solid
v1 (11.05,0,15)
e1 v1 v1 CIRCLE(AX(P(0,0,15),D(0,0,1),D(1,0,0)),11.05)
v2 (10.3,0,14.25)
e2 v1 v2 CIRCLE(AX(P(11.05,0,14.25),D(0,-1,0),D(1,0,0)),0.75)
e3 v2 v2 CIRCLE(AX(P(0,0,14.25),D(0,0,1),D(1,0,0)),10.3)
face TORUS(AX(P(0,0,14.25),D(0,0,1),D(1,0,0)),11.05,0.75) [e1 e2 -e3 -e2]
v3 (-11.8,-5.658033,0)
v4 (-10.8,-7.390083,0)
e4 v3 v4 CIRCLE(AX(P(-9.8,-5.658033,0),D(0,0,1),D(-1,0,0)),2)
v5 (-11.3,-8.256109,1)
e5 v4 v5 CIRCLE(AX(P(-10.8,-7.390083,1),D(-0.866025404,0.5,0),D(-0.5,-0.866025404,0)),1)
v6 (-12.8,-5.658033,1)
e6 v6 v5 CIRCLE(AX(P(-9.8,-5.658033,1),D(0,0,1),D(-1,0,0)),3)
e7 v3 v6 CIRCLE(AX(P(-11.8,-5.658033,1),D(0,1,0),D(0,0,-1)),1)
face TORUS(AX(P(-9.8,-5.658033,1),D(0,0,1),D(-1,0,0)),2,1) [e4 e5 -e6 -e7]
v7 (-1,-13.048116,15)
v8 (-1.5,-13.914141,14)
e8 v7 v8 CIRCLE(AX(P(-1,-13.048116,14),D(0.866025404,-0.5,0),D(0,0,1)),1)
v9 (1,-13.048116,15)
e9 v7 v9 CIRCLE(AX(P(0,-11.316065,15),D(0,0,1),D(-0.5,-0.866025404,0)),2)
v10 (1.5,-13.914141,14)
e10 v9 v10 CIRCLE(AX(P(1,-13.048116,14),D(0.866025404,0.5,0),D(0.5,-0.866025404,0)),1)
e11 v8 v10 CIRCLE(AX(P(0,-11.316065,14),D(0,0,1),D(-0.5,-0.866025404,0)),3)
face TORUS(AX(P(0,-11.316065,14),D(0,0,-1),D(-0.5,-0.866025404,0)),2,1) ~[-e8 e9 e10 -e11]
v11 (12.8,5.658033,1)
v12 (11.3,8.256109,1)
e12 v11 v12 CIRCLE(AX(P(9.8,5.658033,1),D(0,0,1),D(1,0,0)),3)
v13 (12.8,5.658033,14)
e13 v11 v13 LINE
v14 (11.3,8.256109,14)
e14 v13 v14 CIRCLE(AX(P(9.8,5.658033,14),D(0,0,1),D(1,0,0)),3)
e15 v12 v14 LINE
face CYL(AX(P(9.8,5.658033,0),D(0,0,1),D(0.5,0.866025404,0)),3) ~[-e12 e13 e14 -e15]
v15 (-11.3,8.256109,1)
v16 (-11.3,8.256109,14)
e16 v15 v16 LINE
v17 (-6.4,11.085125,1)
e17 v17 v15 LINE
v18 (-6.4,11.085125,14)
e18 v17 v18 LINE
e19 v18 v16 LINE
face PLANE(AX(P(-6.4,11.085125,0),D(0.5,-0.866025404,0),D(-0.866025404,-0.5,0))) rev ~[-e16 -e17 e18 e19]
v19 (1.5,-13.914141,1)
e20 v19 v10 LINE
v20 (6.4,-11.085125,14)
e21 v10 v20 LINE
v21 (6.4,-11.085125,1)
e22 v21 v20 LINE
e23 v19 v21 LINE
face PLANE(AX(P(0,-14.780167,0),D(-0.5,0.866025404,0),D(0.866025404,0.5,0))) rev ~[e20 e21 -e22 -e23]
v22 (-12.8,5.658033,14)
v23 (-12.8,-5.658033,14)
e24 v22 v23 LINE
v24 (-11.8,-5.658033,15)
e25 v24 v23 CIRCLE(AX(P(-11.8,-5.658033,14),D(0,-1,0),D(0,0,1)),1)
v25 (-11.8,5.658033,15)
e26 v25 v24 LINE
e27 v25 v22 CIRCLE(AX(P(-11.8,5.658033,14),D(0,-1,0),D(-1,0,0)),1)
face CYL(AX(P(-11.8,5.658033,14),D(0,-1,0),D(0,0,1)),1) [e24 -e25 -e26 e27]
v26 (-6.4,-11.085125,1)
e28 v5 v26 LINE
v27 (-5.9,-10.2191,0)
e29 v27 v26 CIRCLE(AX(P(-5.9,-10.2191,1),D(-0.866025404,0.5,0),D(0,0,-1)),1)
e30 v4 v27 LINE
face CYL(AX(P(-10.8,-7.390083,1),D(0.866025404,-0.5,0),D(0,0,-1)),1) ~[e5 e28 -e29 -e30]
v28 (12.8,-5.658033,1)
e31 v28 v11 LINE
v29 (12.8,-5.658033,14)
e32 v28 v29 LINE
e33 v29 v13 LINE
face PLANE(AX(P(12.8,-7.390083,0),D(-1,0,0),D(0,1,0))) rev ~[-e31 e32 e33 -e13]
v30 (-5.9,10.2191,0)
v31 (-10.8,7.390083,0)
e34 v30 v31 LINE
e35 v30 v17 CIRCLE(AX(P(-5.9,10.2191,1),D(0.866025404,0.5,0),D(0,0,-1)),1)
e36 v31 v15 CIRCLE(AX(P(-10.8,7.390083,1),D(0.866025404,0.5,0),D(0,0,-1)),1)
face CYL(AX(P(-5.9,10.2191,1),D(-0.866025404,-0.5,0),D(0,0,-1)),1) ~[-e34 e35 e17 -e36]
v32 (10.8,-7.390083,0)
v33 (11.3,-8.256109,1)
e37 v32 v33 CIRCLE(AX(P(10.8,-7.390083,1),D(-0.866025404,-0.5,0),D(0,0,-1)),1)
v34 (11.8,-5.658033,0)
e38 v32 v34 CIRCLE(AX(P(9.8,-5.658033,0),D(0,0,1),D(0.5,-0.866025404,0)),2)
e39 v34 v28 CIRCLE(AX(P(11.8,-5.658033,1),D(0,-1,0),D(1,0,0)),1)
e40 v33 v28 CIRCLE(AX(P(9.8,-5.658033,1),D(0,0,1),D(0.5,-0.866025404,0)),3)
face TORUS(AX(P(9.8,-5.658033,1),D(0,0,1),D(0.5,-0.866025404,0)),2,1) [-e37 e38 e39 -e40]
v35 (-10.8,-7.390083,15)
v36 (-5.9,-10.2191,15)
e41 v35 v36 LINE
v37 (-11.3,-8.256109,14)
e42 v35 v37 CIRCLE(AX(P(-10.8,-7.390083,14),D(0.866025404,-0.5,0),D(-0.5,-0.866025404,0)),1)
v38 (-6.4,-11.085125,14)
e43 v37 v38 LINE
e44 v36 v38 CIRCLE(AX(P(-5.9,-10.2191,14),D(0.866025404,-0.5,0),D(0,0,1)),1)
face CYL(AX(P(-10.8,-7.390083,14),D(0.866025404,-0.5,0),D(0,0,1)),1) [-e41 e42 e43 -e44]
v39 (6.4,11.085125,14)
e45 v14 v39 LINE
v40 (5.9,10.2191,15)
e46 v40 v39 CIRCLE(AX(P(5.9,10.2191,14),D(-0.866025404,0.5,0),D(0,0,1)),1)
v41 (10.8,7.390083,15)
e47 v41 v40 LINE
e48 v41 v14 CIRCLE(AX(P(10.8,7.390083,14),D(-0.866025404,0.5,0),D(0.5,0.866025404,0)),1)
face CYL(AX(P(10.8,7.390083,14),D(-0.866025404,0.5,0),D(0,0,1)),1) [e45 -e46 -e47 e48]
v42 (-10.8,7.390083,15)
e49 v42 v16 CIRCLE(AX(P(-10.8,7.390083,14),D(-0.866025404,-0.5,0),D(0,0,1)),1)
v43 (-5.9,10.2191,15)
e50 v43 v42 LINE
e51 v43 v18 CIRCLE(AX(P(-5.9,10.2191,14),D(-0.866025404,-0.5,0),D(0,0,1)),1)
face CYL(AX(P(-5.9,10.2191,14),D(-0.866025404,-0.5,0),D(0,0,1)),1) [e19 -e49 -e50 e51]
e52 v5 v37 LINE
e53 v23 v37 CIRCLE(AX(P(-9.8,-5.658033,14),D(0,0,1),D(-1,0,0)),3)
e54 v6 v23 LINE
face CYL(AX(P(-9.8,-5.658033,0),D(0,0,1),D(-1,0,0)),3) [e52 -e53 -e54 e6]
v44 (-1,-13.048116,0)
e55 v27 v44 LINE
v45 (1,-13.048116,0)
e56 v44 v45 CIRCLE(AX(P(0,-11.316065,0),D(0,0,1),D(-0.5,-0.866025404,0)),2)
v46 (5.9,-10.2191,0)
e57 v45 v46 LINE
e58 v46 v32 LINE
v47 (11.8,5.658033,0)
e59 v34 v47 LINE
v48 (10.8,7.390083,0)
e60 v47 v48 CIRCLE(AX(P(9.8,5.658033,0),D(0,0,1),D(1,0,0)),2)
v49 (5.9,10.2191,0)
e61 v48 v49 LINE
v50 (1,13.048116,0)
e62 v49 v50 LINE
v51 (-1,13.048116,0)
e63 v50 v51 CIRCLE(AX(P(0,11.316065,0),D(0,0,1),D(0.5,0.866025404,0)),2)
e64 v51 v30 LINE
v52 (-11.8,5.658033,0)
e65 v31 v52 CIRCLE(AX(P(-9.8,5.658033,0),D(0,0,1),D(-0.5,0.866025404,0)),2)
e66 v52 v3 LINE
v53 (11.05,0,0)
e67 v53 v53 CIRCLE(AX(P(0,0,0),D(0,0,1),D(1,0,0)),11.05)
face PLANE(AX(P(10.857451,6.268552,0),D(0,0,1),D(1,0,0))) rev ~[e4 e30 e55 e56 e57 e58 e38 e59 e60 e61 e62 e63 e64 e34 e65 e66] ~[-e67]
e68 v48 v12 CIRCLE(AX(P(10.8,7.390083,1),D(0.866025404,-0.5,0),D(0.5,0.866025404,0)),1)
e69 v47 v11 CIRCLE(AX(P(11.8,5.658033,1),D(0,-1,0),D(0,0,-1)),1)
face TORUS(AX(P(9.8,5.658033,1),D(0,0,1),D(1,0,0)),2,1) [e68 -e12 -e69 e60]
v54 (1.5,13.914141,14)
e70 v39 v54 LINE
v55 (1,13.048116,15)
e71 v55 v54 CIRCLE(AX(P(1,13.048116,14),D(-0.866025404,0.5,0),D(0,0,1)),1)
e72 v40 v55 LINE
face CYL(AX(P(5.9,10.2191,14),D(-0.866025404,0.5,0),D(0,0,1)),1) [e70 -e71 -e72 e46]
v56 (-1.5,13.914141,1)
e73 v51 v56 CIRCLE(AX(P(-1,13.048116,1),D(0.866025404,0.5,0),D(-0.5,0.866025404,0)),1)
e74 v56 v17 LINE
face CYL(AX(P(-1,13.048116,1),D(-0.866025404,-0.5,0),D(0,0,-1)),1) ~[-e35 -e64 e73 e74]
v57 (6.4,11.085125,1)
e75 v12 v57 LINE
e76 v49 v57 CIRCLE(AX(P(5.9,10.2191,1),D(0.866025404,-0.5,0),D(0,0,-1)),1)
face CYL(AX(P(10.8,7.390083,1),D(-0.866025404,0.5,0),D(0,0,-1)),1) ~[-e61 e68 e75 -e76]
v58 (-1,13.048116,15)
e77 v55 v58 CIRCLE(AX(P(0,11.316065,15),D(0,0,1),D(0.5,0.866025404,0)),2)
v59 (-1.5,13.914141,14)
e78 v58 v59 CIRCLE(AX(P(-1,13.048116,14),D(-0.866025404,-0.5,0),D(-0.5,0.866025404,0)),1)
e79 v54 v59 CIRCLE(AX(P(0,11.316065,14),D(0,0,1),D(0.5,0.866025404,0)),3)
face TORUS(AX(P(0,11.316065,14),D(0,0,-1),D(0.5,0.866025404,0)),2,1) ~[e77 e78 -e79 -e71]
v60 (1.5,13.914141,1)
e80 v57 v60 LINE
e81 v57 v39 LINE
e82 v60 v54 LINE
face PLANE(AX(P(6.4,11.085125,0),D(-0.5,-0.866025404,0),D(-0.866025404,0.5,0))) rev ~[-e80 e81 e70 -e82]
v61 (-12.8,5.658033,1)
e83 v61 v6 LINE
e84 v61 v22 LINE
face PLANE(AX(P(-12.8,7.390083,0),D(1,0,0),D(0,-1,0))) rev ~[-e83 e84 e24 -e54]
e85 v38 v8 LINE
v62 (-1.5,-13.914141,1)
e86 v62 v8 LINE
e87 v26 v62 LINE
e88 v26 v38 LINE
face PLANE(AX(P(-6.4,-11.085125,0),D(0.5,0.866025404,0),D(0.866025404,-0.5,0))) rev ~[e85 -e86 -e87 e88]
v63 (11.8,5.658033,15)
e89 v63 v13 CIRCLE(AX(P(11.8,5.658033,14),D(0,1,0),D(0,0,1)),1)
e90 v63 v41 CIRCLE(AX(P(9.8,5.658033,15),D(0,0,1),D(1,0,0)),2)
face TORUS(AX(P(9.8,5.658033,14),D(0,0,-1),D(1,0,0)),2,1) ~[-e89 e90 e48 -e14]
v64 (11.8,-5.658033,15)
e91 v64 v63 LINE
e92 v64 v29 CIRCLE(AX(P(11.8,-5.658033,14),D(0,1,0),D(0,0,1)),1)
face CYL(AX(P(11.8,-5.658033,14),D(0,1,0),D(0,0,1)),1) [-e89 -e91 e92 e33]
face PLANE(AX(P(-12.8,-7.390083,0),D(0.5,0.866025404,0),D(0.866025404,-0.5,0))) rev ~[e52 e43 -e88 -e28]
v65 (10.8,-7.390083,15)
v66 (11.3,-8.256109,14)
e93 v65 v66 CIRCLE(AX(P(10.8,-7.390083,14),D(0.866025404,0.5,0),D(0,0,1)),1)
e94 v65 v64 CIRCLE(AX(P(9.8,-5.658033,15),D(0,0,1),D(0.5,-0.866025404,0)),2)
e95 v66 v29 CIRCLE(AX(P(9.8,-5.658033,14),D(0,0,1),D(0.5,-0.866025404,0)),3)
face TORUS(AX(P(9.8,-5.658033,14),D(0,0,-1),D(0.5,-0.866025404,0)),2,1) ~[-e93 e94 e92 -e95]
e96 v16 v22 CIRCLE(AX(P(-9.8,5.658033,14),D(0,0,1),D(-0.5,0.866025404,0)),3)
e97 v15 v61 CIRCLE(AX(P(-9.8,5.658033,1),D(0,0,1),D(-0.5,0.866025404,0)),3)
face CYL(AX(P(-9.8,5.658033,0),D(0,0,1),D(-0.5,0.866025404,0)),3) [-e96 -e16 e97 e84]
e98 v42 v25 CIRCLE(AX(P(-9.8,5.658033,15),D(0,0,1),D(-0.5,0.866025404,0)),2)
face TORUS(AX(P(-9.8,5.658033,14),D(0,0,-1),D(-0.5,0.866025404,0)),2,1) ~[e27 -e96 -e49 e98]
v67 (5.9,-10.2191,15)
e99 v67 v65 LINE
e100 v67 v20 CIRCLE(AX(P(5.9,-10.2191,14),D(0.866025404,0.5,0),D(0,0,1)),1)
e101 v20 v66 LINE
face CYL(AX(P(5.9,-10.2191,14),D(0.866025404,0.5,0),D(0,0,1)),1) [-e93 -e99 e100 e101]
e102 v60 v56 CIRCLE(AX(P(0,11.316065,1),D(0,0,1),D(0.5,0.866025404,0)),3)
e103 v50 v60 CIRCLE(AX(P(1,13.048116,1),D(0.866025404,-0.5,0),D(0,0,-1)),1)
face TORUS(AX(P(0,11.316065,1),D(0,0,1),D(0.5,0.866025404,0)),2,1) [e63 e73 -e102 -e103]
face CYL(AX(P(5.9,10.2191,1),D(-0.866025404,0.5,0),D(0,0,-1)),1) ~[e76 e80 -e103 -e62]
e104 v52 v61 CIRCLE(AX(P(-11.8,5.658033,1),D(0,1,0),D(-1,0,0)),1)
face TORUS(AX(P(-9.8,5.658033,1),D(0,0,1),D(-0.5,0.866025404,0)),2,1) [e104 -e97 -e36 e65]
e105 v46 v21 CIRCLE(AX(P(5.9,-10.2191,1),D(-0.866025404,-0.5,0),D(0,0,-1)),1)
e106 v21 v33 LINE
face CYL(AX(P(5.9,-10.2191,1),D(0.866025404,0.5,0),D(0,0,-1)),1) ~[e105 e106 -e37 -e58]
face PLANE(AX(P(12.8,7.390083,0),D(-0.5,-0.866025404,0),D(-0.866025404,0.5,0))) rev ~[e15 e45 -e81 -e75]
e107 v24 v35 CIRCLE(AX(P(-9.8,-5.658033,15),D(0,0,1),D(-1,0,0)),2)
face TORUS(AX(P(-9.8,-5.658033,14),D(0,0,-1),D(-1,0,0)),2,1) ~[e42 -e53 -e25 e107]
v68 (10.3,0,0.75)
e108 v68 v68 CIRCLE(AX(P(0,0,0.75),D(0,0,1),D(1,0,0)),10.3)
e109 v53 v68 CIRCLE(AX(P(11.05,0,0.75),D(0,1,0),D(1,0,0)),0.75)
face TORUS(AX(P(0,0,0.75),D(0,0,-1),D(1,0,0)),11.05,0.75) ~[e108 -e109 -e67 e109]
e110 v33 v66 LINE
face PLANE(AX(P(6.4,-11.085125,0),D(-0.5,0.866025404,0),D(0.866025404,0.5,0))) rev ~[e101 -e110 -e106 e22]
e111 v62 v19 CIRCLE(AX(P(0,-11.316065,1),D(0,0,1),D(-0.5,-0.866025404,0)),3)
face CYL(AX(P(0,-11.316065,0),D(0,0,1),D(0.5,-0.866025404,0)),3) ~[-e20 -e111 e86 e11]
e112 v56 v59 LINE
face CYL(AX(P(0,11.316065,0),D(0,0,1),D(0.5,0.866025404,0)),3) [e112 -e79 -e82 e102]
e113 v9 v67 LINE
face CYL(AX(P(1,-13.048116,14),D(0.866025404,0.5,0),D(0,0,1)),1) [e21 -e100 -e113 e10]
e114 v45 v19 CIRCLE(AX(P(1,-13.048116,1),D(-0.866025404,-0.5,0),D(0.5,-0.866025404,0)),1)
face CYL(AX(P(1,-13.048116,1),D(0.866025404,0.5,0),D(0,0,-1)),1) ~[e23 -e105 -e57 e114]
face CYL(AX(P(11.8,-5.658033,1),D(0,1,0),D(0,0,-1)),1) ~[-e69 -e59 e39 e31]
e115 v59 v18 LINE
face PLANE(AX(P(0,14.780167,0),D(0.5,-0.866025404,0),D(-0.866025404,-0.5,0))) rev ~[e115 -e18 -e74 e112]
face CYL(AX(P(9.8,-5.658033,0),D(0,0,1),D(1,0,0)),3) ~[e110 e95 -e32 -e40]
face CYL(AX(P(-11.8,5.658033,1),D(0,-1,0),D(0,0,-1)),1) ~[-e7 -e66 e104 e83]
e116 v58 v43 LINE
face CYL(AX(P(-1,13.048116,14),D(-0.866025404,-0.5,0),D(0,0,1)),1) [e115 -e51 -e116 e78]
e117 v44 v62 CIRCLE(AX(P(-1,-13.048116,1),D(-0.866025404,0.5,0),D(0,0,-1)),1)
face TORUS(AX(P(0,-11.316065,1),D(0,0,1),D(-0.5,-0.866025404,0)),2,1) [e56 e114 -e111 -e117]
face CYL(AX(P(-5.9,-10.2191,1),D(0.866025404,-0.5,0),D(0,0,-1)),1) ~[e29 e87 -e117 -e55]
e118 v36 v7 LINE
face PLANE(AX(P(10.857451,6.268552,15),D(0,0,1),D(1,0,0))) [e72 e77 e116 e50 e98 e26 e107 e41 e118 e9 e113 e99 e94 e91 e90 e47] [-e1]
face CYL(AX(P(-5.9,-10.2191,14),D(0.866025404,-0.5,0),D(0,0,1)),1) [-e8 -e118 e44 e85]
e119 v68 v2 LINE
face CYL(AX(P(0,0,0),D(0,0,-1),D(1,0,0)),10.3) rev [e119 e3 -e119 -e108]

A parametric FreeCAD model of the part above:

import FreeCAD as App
import Part
import Sketcher
from FreeCAD import Vector
Q = App.Units.Quantity


def edges_at(feature, points):
    """Names of the edges that pass closest to the given points."""
    edges = feature.Shape.Edges
    near = lambda p: min(range(len(edges)), key=lambda i: edges[i].distToShape(Part.Vertex(*p))[0])
    return sorted({f"Edge{near(p) + 1}" for p in points})

doc = App.newDocument("Part")
params = doc.addObject("Spreadsheet::Sheet", "Params")
for row, (alias, value) in enumerate([
    ("sketch1_diameter", "20.6 mm"),
    ("pad1_length", "15 mm"),
    ("fillet_radius", "3 mm"),
    ("fillet2_radius", "1 mm"),
    ("fillet3_radius", "0.75 mm"),
], start=1):
    params.set(f"A{row}", alias)
    params.set(f"B{row}", "=" + value)
    params.setAlias(f"B{row}", alias)

body = doc.addObject("PartDesign::Body", "Body")

sketch1 = body.newObject("Sketcher::SketchObject", "Sketch")
sketch1.AttachmentSupport = (doc.getObject("XY_Plane"), [""])
sketch1.MapMode = "FlatFace"
sketch1.addGeometry([
    Part.LineSegment(Vector(12.8, 7.390083, 0), Vector(6.4, 11.085125, 0)),
    Part.LineSegment(Vector(6.4, 11.085125, 0), Vector(0, 14.780167, 0)),
    Part.LineSegment(Vector(0, 14.780167, 0), Vector(-6.4, 11.085125, 0)),
    Part.LineSegment(Vector(-6.4, 11.085125, 0), Vector(-12.8, 7.390083, 0)),
    Part.LineSegment(Vector(-12.8, 7.390083, 0), Vector(-12.8, -7.390083, 0)),
    Part.LineSegment(Vector(-12.8, -7.390083, 0), Vector(-6.4, -11.085125, 0)),
    Part.LineSegment(Vector(-6.4, -11.085125, 0), Vector(0, -14.780167, 0)),
    Part.LineSegment(Vector(0, -14.780167, 0), Vector(6.4, -11.085125, 0)),
    Part.LineSegment(Vector(6.4, -11.085125, 0), Vector(12.8, -7.390083, 0)),
    Part.LineSegment(Vector(12.8, -7.390083, 0), Vector(12.8, 7.390083, 0)),
    Part.Circle(Vector(0, 0, 0), Vector(0, 0, 1), 10.3),
], False)
sketch1.addConstraint([
    Sketcher.Constraint("Coincident", 0, 2, 1, 1),
    Sketcher.Constraint("Coincident", 1, 2, 2, 1),
    Sketcher.Constraint("Coincident", 2, 2, 3, 1),
    Sketcher.Constraint("Coincident", 3, 2, 4, 1),
    Sketcher.Constraint("Coincident", 4, 2, 5, 1),
    Sketcher.Constraint("Coincident", 5, 2, 6, 1),
    Sketcher.Constraint("Coincident", 6, 2, 7, 1),
    Sketcher.Constraint("Coincident", 7, 2, 8, 1),
    Sketcher.Constraint("Coincident", 8, 2, 9, 1),
    Sketcher.Constraint("Coincident", 9, 2, 0, 1),
    Sketcher.Constraint("Vertical", 4),
    Sketcher.Constraint("Vertical", 9),
    Sketcher.Constraint("Coincident", 10, 3, -1, 1),
    Sketcher.Constraint("Symmetric", 0, 2, 5, 2, -1, 1),
    Sketcher.Constraint("Symmetric", 1, 2, 6, 2, -1, 1),
    Sketcher.Constraint("Symmetric", 2, 2, 7, 2, -1, 1),
    Sketcher.Constraint("Symmetric", 3, 2, 8, 2, -1, 1),
    Sketcher.Constraint("Symmetric", 0, 2, 2, 2, -2),
    Sketcher.Constraint("PointOnObject", 1, 2, -2),
    Sketcher.Constraint("Parallel", 0, 1),
    Sketcher.Constraint("Parallel", 2, 3),
    Sketcher.Constraint("Parallel", 1, 5),
    Sketcher.Constraint("Equal", 0, 1),
    Sketcher.Constraint("Diameter", 10, Q("20.6 mm")),
    Sketcher.Constraint("Angle", 0, Q("150 deg")),
    Sketcher.Constraint("DistanceX", -1, 1, 0, 2, Q("6.4 mm")),
    Sketcher.Constraint("DistanceY", 4, 2, 4, 1, Q("14.780167 mm")),
])
sketch1.setExpression("Constraints[23]", "Params.sketch1_diameter")
pad1 = body.newObject("PartDesign::Pad", "Pad")
pad1.Profile = sketch1
pad1.setExpression("Length", "Params.pad1_length")
doc.recompute()

fillet = body.newObject("PartDesign::Fillet", "Fillet")
fillet.Base = (pad1, edges_at(pad1, [
    (0, 14.78, 7.5),
    (12.8, 7.39, 7.5),
    (12.8, -7.39, 7.5),
    (0, -14.78, 7.5),
    (-12.8, -7.39, 7.5),
    (-12.8, 7.39, 7.5),
]))
fillet.setExpression("Radius", "Params.fillet_radius")
doc.recompute()

fillet2 = body.newObject("PartDesign::Fillet", "Fillet001")
fillet2.Base = (fillet, edges_at(fillet, [
    (12.8, 0, 15),
    (12.398, -7.158, 15),
    (8.85, -9.671, 15),
    (-3.95, -12.5, 15),
    (-12.398, 7.158, 15),
    (-12.8, 0, 15),
    (-8.85, 9.671, 15),
    (8.85, 9.671, 15),
    (0, 14.316, 15),
    (12.398, 7.158, 15),
    (-3.95, -12.5, 0),
    (12.398, -7.158, 0),
]))
fillet2.setExpression("Radius", "Params.fillet2_radius")
doc.recompute()

fillet3 = body.newObject("PartDesign::Fillet", "Fillet002")
fillet3.Base = (fillet2, edges_at(fillet2, [(-10.3, 0, 0), (-10.3, 0, 15)]))
fillet3.setExpression("Radius", "Params.fillet3_radius")

doc.recompute()
